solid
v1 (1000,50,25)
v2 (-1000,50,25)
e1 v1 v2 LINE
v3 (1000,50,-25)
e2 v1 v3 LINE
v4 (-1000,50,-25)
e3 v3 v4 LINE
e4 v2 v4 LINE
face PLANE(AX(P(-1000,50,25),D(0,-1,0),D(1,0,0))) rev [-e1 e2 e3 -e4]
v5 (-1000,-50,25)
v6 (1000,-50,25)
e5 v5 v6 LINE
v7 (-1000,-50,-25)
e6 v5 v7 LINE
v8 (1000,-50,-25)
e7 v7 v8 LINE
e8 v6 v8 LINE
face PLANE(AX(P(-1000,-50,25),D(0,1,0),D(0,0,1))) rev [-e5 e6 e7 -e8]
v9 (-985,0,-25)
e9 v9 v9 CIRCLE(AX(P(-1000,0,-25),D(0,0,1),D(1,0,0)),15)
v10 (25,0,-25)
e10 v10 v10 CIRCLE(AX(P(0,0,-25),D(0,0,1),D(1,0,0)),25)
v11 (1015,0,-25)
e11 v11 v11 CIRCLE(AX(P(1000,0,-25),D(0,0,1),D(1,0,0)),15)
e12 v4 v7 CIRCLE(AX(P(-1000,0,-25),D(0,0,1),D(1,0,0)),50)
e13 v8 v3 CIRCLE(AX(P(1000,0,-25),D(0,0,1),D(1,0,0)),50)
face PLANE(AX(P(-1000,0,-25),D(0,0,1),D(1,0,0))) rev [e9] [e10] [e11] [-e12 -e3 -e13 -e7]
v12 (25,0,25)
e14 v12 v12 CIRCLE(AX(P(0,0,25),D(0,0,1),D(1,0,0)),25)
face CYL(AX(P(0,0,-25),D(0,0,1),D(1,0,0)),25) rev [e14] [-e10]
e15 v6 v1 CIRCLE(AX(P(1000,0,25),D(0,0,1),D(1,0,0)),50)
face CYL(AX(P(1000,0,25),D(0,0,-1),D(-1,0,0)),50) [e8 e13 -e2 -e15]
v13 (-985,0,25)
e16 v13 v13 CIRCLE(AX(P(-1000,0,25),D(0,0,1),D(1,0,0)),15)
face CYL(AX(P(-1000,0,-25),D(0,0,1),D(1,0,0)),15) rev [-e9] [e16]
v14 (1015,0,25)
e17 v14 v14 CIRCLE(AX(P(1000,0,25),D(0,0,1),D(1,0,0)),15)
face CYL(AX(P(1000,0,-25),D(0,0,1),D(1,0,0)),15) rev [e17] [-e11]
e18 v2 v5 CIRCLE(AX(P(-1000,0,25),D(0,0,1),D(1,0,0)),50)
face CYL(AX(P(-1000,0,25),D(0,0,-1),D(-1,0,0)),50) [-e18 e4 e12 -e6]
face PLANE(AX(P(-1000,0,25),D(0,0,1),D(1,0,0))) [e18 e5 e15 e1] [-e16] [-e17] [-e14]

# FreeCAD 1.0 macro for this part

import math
import FreeCAD as App
import Part
import Sketcher
from FreeCAD import Vector

doc = App.newDocument("Part")
body = doc.addObject("PartDesign::Body", "Body")

# Sketch on XY plane
sketch1 = doc.addObject("Sketcher::SketchObject", "Sketch")
body.addObject(sketch1)
sketch1.AttachmentSupport = (doc.XY_Plane, [""])
sketch1.MapMode = "FlatFace"
sketch1.addGeometry(Part.LineSegment(Vector(1000, 50, 0), Vector(-1000, 50, 0)), False)
sketch1.addGeometry(Part.ArcOfCircle(Part.Circle(Vector(-1000, 0, 0), Vector(0, 0, 1), 50), math.radians(90), math.radians(270)), False)
sketch1.addGeometry(Part.LineSegment(Vector(-1000, -50, 0), Vector(1000, -50, 0)), False)
sketch1.addGeometry(Part.ArcOfCircle(Part.Circle(Vector(1000, 0, 0), Vector(0, 0, 1), 50), math.radians(-90), math.radians(90)), False)
sketch1.addConstraint(Sketcher.Constraint("Tangent", 0, 2, 1, 1))
sketch1.addConstraint(Sketcher.Constraint("Tangent", 1, 2, 2, 1))
sketch1.addConstraint(Sketcher.Constraint("Tangent", 2, 2, 3, 1))
sketch1.addConstraint(Sketcher.Constraint("Tangent", 3, 2, 0, 1))
sketch1.addConstraint(Sketcher.Constraint("Horizontal", 0))
sketch1.addConstraint(Sketcher.Constraint("Horizontal", 2))
sketch1.addConstraint(Sketcher.Constraint("Symmetric", 1, 3, 3, 3, -1, 1))
sketch1.addConstraint(Sketcher.Constraint("Radius", 1, 50.0))
sketch1.addConstraint(Sketcher.Constraint("DistanceX", 0, 2, 0, 1, 2000.0))
pad1 = doc.addObject("PartDesign::Pad", "Pad")
body.addObject(pad1)
pad1.Profile = sketch1
pad1.Length = 50
pad1.Midplane = True

# Sketch on XY plane
sketch2 = doc.addObject("Sketcher::SketchObject", "Sketch001")
body.addObject(sketch2)
sketch2.AttachmentSupport = (doc.XY_Plane, [""])
sketch2.MapMode = "FlatFace"
sketch2.AttachmentOffset = App.Placement(Vector(0, 0, 25), App.Rotation())
sketch2.addGeometry(Part.Circle(Vector(-1000, 0, 0), Vector(0, 0, 1), 15), False)
sketch2.addGeometry(Part.Circle(Vector(1000, 0, 0), Vector(0, 0, 1), 15), False)
sketch2.addConstraint(Sketcher.Constraint("Equal", 0, 1))
sketch2.addConstraint(Sketcher.Constraint("Symmetric", 0, 3, 1, 3, -1, 1))
sketch2.addConstraint(Sketcher.Constraint("PointOnObject", 0, 3, -1))
sketch2.addConstraint(Sketcher.Constraint("Diameter", 0, 30.0))
sketch2.addConstraint(Sketcher.Constraint("DistanceX", 0, 3, -1, 1, 1000.0))
pocket1 = doc.addObject("PartDesign::Pocket", "Pocket")
body.addObject(pocket1)
pocket1.Profile = sketch2
pocket1.Type = "ThroughAll"

# Sketch on XY plane
sketch3 = doc.addObject("Sketcher::SketchObject", "Sketch002")
body.addObject(sketch3)
sketch3.AttachmentSupport = (doc.XY_Plane, [""])
sketch3.MapMode = "FlatFace"
sketch3.addGeometry(Part.Circle(Vector(0, 0, 0), Vector(0, 0, 1), 25), False)
sketch3.addConstraint(Sketcher.Constraint("Coincident", 0, 3, -1, 1))
sketch3.addConstraint(Sketcher.Constraint("Diameter", 0, 50.0))
pocket2 = doc.addObject("PartDesign::Pocket", "Pocket001")
body.addObject(pocket2)
pocket2.Profile = sketch3
pocket2.Type = "ThroughAll"
pocket2.Midplane = True

doc.recompute()
